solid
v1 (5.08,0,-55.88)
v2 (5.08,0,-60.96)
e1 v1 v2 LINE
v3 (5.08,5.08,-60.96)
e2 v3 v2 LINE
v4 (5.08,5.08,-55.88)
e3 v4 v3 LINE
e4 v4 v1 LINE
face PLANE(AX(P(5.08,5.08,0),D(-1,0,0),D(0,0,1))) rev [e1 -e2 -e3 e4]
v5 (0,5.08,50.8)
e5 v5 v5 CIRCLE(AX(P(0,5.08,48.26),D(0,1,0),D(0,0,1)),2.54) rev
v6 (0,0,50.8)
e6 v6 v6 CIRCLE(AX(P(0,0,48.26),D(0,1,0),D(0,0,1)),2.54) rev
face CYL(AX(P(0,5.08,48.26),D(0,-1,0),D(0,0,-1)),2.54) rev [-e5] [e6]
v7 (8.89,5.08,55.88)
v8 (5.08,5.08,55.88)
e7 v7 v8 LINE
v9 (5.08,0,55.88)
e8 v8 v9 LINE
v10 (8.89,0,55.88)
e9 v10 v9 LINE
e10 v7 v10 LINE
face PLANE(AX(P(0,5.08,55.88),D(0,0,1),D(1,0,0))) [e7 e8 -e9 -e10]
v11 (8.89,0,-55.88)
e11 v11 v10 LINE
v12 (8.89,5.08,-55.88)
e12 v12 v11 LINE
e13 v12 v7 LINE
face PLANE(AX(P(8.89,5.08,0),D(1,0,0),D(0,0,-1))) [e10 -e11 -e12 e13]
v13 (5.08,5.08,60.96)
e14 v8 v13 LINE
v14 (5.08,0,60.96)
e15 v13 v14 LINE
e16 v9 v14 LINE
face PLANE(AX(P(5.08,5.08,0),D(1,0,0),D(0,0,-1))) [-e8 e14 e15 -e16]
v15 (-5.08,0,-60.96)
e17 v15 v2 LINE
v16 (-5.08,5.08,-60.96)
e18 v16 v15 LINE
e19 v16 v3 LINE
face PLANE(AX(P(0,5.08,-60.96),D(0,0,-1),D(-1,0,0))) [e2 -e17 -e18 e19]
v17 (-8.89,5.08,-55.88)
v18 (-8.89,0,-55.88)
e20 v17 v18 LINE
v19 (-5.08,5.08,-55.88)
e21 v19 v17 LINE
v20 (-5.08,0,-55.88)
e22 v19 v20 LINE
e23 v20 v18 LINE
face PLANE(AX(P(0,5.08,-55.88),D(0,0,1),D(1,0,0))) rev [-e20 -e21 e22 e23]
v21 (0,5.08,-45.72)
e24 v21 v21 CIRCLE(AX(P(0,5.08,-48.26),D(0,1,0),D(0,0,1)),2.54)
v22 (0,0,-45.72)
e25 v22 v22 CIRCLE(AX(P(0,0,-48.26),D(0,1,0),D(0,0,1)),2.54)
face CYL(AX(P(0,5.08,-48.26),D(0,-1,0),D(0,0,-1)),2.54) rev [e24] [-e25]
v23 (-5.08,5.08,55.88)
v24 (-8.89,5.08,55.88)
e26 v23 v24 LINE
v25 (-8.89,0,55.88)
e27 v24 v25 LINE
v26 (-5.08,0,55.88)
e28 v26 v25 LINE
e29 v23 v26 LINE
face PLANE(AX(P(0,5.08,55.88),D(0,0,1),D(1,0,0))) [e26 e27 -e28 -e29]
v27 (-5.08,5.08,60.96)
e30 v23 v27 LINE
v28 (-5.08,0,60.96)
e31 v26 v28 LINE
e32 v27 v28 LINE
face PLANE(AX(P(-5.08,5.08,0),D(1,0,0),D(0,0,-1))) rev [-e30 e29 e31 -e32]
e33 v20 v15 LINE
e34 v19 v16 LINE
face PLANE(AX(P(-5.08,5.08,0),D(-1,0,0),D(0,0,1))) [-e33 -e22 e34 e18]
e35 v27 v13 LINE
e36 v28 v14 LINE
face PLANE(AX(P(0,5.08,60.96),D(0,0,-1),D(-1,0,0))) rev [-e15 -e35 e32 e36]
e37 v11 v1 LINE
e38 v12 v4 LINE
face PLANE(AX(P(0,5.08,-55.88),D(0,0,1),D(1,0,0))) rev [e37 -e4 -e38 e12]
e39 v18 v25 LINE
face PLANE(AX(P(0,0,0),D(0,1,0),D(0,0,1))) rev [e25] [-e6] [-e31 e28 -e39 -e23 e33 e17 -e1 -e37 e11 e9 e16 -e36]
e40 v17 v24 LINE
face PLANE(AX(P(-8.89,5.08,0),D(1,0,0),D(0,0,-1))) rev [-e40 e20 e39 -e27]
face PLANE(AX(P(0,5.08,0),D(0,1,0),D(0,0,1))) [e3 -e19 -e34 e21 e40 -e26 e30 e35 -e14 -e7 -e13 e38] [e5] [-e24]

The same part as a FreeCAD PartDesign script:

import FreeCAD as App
import Part
import Sketcher

V = App.Vector
Q = App.Units.Quantity

doc = App.newDocument("Part")
params = doc.addObject("Spreadsheet::Sheet", "Params")
for row, (alias, value) in enumerate([
    ("sketch1_diameter", "0.2 in"),
    ("sketch1_width", "0.4 in"),
    ("sketch1_height", "4.4 in"),
    ("sketch1_height2", "0.2 in"),
    ("sketch1_width2", "0.15 in"),
    ("pad1_length", "0.2 in"),
], start=1):
    params.set(f"A{row}", alias)
    params.set(f"B{row}", "=" + value)
    params.setAlias(f"B{row}", alias)

body = doc.addObject("PartDesign::Body", "Body")

sketch1 = body.newObject("Sketcher::SketchObject", "Sketch")
sketch1.AttachmentSupport = (doc.getObject("XZ_Plane"), [""])
sketch1.MapMode = "FlatFace"
sketch1.addGeometry(Part.LineSegment(V(-8.9, -55.9, 0), V(-8.9, 55.9, 0)), False)
sketch1.addGeometry(Part.LineSegment(V(-8.9, 55.9, 0), V(-5.1, 55.9, 0)), False)
sketch1.addGeometry(Part.LineSegment(V(-5.1, 55.9, 0), V(-5.1, 61, 0)), False)
sketch1.addGeometry(Part.LineSegment(V(-5.1, 61, 0), V(5.1, 61, 0)), False)
sketch1.addGeometry(Part.LineSegment(V(5.1, 61, 0), V(5.1, 55.9, 0)), False)
sketch1.addGeometry(Part.LineSegment(V(5.1, 55.9, 0), V(8.9, 55.9, 0)), False)
sketch1.addGeometry(Part.LineSegment(V(8.9, 55.9, 0), V(8.9, -55.9, 0)), False)
sketch1.addGeometry(Part.LineSegment(V(8.9, -55.9, 0), V(5.1, -55.9, 0)), False)
sketch1.addGeometry(Part.LineSegment(V(5.1, -55.9, 0), V(5.1, -61, 0)), False)
sketch1.addGeometry(Part.LineSegment(V(5.1, -61, 0), V(-5.1, -61, 0)), False)
sketch1.addGeometry(Part.LineSegment(V(-5.1, -61, 0), V(-5.1, -55.9, 0)), False)
sketch1.addGeometry(Part.LineSegment(V(-5.1, -55.9, 0), V(-8.9, -55.9, 0)), False)
sketch1.addGeometry(Part.Circle(V(0, 48.3, 0), V(0, 0, 1), 2.5), False)
sketch1.addGeometry(Part.Circle(V(0, -48.3, 0), V(0, 0, 1), 2.5), False)
sketch1.addConstraint(Sketcher.Constraint("Coincident", 0, 2, 1, 1))
sketch1.addConstraint(Sketcher.Constraint("Coincident", 1, 2, 2, 1))
sketch1.addConstraint(Sketcher.Constraint("Coincident", 2, 2, 3, 1))
sketch1.addConstraint(Sketcher.Constraint("Coincident", 3, 2, 4, 1))
sketch1.addConstraint(Sketcher.Constraint("Coincident", 4, 2, 5, 1))
sketch1.addConstraint(Sketcher.Constraint("Coincident", 5, 2, 6, 1))
sketch1.addConstraint(Sketcher.Constraint("Coincident", 6, 2, 7, 1))
sketch1.addConstraint(Sketcher.Constraint("Coincident", 7, 2, 8, 1))
sketch1.addConstraint(Sketcher.Constraint("Coincident", 8, 2, 9, 1))
sketch1.addConstraint(Sketcher.Constraint("Coincident", 9, 2, 10, 1))
sketch1.addConstraint(Sketcher.Constraint("Coincident", 10, 2, 11, 1))
sketch1.addConstraint(Sketcher.Constraint("Coincident", 11, 2, 0, 1))
sketch1.addConstraint(Sketcher.Constraint("Vertical", 0))
sketch1.addConstraint(Sketcher.Constraint("Horizontal", 1))
sketch1.addConstraint(Sketcher.Constraint("Vertical", 2))
sketch1.addConstraint(Sketcher.Constraint("Horizontal", 3))
sketch1.addConstraint(Sketcher.Constraint("Vertical", 4))
sketch1.addConstraint(Sketcher.Constraint("Horizontal", 5))
sketch1.addConstraint(Sketcher.Constraint("Vertical", 6))
sketch1.addConstraint(Sketcher.Constraint("Horizontal", 7))
sketch1.addConstraint(Sketcher.Constraint("Vertical", 8))
sketch1.addConstraint(Sketcher.Constraint("Horizontal", 9))
sketch1.addConstraint(Sketcher.Constraint("Vertical", 10))
sketch1.addConstraint(Sketcher.Constraint("Horizontal", 11))
sketch1.addConstraint(Sketcher.Constraint("Equal", 12, 13))
sketch1.addConstraint(Sketcher.Constraint("Symmetric", 12, 3, 13, 3, -1, 1))
sketch1.addConstraint(Sketcher.Constraint("Symmetric", 0, 2, 6, 2, -1, 1))
sketch1.addConstraint(Sketcher.Constraint("Symmetric", 2, 2, 8, 2, -1, 1))
sketch1.addConstraint(Sketcher.Constraint("Symmetric", 4, 2, 10, 2, -1, 1))
sketch1.addConstraint(Sketcher.Constraint("Symmetric", 1, 2, 4, 2, -2))
sketch1.addConstraint(Sketcher.Constraint("PointOnObject", 12, 3, -2))
sketch1.addConstraint(Sketcher.Constraint("Diameter", 12, Q("0.2 in")))
sketch1.addConstraint(Sketcher.Constraint("DistanceX", 3, 1, 3, 2, Q("0.4 in")))
sketch1.addConstraint(Sketcher.Constraint("DistanceY", 0, 1, 0, 2, Q("4.4 in")))
sketch1.addConstraint(Sketcher.Constraint("DistanceY", 2, 1, 2, 2, Q("0.2 in")))
sketch1.addConstraint(Sketcher.Constraint("DistanceX", 1, 1, 1, 2, Q("0.15 in")))
sketch1.addConstraint(Sketcher.Constraint("DistanceY", -1, 1, 12, 3, Q("1.9 in")))
sketch1.setExpression("Constraints[31]", "Params.sketch1_diameter")
sketch1.setExpression("Constraints[32]", "Params.sketch1_width")
sketch1.setExpression("Constraints[33]", "Params.sketch1_height")
sketch1.setExpression("Constraints[34]", "Params.sketch1_height2")
sketch1.setExpression("Constraints[35]", "Params.sketch1_width2")
pad1 = body.newObject("PartDesign::Pad", "Pad")
pad1.Profile = sketch1
pad1.setExpression("Length", "Params.pad1_length")
pad1.Reversed = True

doc.recompute()
